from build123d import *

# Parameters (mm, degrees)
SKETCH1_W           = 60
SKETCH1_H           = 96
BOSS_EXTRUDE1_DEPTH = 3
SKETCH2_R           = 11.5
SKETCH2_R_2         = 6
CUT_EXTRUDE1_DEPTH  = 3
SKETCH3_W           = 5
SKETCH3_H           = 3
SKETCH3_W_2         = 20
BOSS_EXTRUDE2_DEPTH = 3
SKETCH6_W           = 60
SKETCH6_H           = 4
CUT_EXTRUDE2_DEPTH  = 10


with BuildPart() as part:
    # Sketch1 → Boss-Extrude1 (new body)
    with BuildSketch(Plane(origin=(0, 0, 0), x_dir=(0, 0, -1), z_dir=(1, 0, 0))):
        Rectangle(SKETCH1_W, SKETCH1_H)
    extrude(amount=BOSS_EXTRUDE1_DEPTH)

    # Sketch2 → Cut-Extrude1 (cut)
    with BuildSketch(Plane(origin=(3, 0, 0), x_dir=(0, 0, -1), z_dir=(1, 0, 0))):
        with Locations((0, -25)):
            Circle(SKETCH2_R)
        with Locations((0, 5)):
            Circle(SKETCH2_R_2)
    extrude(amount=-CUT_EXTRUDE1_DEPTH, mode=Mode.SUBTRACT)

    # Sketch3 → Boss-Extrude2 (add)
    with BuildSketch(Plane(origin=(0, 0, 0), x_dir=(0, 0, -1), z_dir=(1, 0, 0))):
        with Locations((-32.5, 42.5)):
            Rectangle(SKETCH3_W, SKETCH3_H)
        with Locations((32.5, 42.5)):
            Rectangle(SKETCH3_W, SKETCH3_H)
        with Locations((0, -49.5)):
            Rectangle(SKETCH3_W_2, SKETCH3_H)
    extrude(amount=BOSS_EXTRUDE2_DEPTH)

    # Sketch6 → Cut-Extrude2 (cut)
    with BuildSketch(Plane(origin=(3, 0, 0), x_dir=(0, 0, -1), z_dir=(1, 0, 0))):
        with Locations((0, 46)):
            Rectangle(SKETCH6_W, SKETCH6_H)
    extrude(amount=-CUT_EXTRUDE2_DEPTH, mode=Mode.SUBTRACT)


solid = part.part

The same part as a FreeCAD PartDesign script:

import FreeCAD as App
import Part
import Sketcher

V = App.Vector


def add_polygon(sketch, points):
    """Adds a closed chain of lines whose ends are joined by coincident constraints."""
    first, n = sketch.GeometryCount, len(points)
    for a, b in zip(points, points[1:] + points[:1]):
        sketch.addGeometry(Part.LineSegment(App.Vector(*a, 0), App.Vector(*b, 0)), False)
    for i in range(n):
        sketch.addConstraint(Sketcher.Constraint("Coincident", first + i, 2, first + (i + 1) % n, 1))

doc = App.newDocument("Part")
body = doc.addObject("PartDesign::Body", "Body")

# Sketch on YZ plane
sketch1 = body.newObject("Sketcher::SketchObject", "Sketch")
sketch1.AttachmentSupport = (doc.getObject("YZ_Plane"), [""])
sketch1.MapMode = "FlatFace"
add_polygon(sketch1, [(48, 30), (-48, 30), (-48, -30), (48, -30)])  # lines 0-3
sketch1.addConstraint([
    Sketcher.Constraint("Horizontal", 0),
    Sketcher.Constraint("Vertical", 1),
    Sketcher.Constraint("Horizontal", 2),
    Sketcher.Constraint("Vertical", 3),
    Sketcher.Constraint("Symmetric", 0, 2, 2, 2, -1, 1),
    Sketcher.Constraint("DistanceX", 0, 2, 0, 1, 96.0),
    Sketcher.Constraint("DistanceY", 1, 2, 1, 1, 60.0),
])
pad1 = body.newObject("PartDesign::Pad", "Pad")
pad1.Profile = sketch1
pad1.Length = 3

# Sketch on YZ plane
sketch2 = body.newObject("Sketcher::SketchObject", "Sketch001")
sketch2.AttachmentSupport = (doc.getObject("YZ_Plane"), [""])
sketch2.MapMode = "FlatFace"
sketch2.AttachmentOffset = App.Placement(V(0, 0, 3), App.Rotation())
sketch2.addGeometry([
    Part.Circle(V(-25, 0, 0), V(0, 0, 1), 12),
    Part.Circle(V(5, 0, 0), V(0, 0, 1), 6),
], False)
sketch2.addConstraint([
    Sketcher.Constraint("PointOnObject", 0, 3, -1),
    Sketcher.Constraint("PointOnObject", 1, 3, -1),
    Sketcher.Constraint("Diameter", 0, 23.0),
    Sketcher.Constraint("Diameter", 1, 12.0),
    Sketcher.Constraint("DistanceX", 0, 3, -1, 1, 25.0),
    Sketcher.Constraint("DistanceX", -1, 1, 1, 3, 5.0),
])
pocket1 = body.newObject("PartDesign::Pocket", "Pocket")
pocket1.Profile = sketch2
pocket1.Length = 3

# Sketch on YZ plane
sketch3 = body.newObject("Sketcher::SketchObject", "Sketch002")
sketch3.AttachmentSupport = (doc.getObject("YZ_Plane"), [""])
sketch3.MapMode = "FlatFace"
add_polygon(sketch3, [(44, 35), (41, 35), (41, 30), (44, 30)])  # lines 0-3
add_polygon(sketch3, [(44, -30), (41, -30), (41, -35), (44, -35)])  # lines 4-7
add_polygon(sketch3, [(-48, 10), (-51, 10), (-51, -10), (-48, -10)])  # lines 8-11
sketch3.addConstraint([
    Sketcher.Constraint("Horizontal", 0),
    Sketcher.Constraint("Vertical", 1),
    Sketcher.Constraint("Horizontal", 2),
    Sketcher.Constraint("Vertical", 3),
    Sketcher.Constraint("Horizontal", 4),
    Sketcher.Constraint("Vertical", 5),
    Sketcher.Constraint("Horizontal", 6),
    Sketcher.Constraint("Vertical", 7),
    Sketcher.Constraint("Horizontal", 8),
    Sketcher.Constraint("Vertical", 9),
    Sketcher.Constraint("Horizontal", 10),
    Sketcher.Constraint("Vertical", 11),
    Sketcher.Constraint("Symmetric", 1, 2, 4, 2, -1),
    Sketcher.Constraint("Symmetric", 3, 2, 6, 2, -1),
    Sketcher.Constraint("Equal", 6, 8),
    Sketcher.Constraint("DistanceX", 0, 2, 0, 1, 3.0),
    Sketcher.Constraint("DistanceY", 1, 2, 1, 1, 5.0),
    Sketcher.Constraint("DistanceY", 9, 2, 9, 1, 20.0),
    Sketcher.Constraint("DistanceX", -1, 1, 0, 2, 41.0),
    Sketcher.Constraint("DistanceY", -1, 1, 0, 2, 35.0),
    Sketcher.Constraint("DistanceX", 8, 2, -1, 1, 51.0),
    Sketcher.Constraint("DistanceY", -1, 1, 8, 2, 10.0),
])
pad2 = body.newObject("PartDesign::Pad", "Pad001")
pad2.Profile = sketch3
pad2.Length = 3

# Sketch on YZ plane
sketch4 = body.newObject("Sketcher::SketchObject", "Sketch003")
sketch4.AttachmentSupport = (doc.getObject("YZ_Plane"), [""])
sketch4.MapMode = "FlatFace"
sketch4.AttachmentOffset = App.Placement(V(0, 0, 3), App.Rotation())
add_polygon(sketch4, [(48, 30), (44, 30), (44, -30), (48, -30)])  # lines 0-3
sketch4.addConstraint([
    Sketcher.Constraint("Horizontal", 0),
    Sketcher.Constraint("Vertical", 1),
    Sketcher.Constraint("Horizontal", 2),
    Sketcher.Constraint("Vertical", 3),
    Sketcher.Constraint("DistanceX", 0, 2, 0, 1, 4.0),
    Sketcher.Constraint("DistanceY", 1, 2, 1, 1, 60.0),
    Sketcher.Constraint("DistanceX", -1, 1, 0, 2, 44.0),
    Sketcher.Constraint("DistanceY", -1, 1, 0, 2, 30.0),
])
pocket2 = body.newObject("PartDesign::Pocket", "Pocket001")
pocket2.Profile = sketch4
pocket2.Length = 10

doc.recompute()
